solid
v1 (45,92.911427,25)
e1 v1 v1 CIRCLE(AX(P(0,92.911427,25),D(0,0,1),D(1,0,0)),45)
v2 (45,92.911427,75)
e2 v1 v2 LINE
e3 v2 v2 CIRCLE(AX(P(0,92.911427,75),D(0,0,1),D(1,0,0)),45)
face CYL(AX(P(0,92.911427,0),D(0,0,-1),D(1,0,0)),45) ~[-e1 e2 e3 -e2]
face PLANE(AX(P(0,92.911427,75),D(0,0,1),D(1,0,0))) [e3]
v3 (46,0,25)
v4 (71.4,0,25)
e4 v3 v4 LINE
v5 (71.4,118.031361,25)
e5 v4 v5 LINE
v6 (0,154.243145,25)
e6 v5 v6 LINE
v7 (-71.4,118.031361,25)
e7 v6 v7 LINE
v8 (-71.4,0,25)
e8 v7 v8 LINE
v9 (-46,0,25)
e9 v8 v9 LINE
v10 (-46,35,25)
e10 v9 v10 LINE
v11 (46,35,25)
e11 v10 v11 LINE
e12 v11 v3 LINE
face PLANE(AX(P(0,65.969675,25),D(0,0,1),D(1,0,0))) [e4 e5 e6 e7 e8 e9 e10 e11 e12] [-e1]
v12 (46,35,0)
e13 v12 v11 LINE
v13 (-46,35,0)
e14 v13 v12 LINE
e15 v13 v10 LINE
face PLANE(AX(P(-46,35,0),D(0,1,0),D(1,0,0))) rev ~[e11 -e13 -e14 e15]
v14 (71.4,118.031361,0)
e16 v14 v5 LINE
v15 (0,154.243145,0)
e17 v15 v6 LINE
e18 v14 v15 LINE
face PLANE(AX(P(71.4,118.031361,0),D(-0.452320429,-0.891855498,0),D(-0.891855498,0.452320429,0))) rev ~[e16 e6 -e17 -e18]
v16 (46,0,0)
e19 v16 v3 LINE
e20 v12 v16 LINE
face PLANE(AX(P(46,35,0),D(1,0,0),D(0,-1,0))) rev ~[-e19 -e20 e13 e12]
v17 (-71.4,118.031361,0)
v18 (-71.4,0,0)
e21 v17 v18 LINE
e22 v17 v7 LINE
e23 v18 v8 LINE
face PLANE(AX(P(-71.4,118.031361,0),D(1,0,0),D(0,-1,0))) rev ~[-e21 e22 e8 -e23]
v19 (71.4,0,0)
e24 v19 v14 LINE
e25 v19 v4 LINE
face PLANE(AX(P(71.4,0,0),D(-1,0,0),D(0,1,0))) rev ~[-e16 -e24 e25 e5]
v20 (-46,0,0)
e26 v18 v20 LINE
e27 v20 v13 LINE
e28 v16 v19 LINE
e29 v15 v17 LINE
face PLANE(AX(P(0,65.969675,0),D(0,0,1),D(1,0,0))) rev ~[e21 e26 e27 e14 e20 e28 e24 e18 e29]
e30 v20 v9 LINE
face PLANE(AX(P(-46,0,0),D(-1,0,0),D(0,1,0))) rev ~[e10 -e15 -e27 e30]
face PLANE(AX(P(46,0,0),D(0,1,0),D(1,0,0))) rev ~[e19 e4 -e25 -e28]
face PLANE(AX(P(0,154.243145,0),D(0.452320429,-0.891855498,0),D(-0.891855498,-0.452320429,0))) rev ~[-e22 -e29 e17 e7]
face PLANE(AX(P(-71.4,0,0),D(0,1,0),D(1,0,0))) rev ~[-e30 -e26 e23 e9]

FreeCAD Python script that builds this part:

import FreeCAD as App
import Part
import Sketcher
from FreeCAD import Vector

doc = App.newDocument("Part")
body = doc.addObject("PartDesign::Body", "Body")

# Sketch on XY plane
sketch1 = body.newObject("Sketcher::SketchObject", "Sketch")
sketch1.AttachmentSupport = (doc.getObject("XY_Plane"), [""])
sketch1.MapMode = "FlatFace"
sketch1.addGeometry([
    Part.LineSegment(Vector(-46, 35, 0), Vector(46, 35, 0)),  # 0
    Part.LineSegment(Vector(46, 35, 0), Vector(46, 0, 0)),  # 1
    Part.LineSegment(Vector(46, 0, 0), Vector(71.4, 0, 0)),  # 2
    Part.LineSegment(Vector(71.4, 0, 0), Vector(71.4, 118.031361, 0)),  # 3
    Part.LineSegment(Vector(71.4, 118.031361, 0), Vector(0, 154.243145, 0)),  # 4
    Part.LineSegment(Vector(0, 154.243145, 0), Vector(-71.4, 118.031361, 0)),  # 5
    Part.LineSegment(Vector(-71.4, 118.031361, 0), Vector(-71.4, 0, 0)),  # 6
    Part.LineSegment(Vector(-71.4, 0, 0), Vector(-46, 0, 0)),  # 7
    Part.LineSegment(Vector(-46, 0, 0), Vector(-46, 35, 0)),  # 8
    Part.Circle(Vector(0, 92.911427, 0), Vector(0, 0, 1), 45),  # 9
], False)
sketch1.addConstraint([
    Sketcher.Constraint("Coincident", 0, 2, 1, 1),
    Sketcher.Constraint("Coincident", 1, 2, 2, 1),
    Sketcher.Constraint("Coincident", 2, 2, 3, 1),
    Sketcher.Constraint("Coincident", 3, 2, 4, 1),
    Sketcher.Constraint("Coincident", 4, 2, 5, 1),
    Sketcher.Constraint("Coincident", 5, 2, 6, 1),
    Sketcher.Constraint("Coincident", 6, 2, 7, 1),
    Sketcher.Constraint("Coincident", 7, 2, 8, 1),
    Sketcher.Constraint("Coincident", 8, 2, 0, 1),
    Sketcher.Constraint("Horizontal", 0),
    Sketcher.Constraint("Vertical", 1),
    Sketcher.Constraint("Horizontal", 2),
    Sketcher.Constraint("Vertical", 3),
    Sketcher.Constraint("Vertical", 6),
    Sketcher.Constraint("Horizontal", 7),
    Sketcher.Constraint("Vertical", 8),
    Sketcher.Constraint("Symmetric", 2, 2, 6, 2, -1, 1),
    Sketcher.Constraint("Symmetric", 1, 2, 7, 2, -2),
    Sketcher.Constraint("PointOnObject", 9, 3, -2),
    Sketcher.Constraint("PointOnObject", 4, 2, -2),
    Sketcher.Constraint("Horizontal", 3, 2, 5, 2),
    Sketcher.Constraint("Diameter", 9, 90.0),
    Sketcher.Constraint("DistanceX", 0, 1, 0, 2, 92.0),
    Sketcher.Constraint("DistanceY", 1, 2, 1, 1, 35.0),
    Sketcher.Constraint("DistanceX", 2, 1, 2, 2, 25.4),
    Sketcher.Constraint("DistanceY", 3, 1, 3, 2, 118.031361),
    Sketcher.Constraint("Distance", 4, 80.057812),
    Sketcher.Constraint("DistanceY", -1, 1, 9, 3, 92.911427),
])
pad1 = body.newObject("PartDesign::Pad", "Pad")
pad1.Profile = sketch1
pad1.Length = 25

# Sketch on XY plane
sketch2 = body.newObject("Sketcher::SketchObject", "Sketch001")
sketch2.AttachmentSupport = (doc.getObject("XY_Plane"), [""])
sketch2.MapMode = "FlatFace"
sketch2.addGeometry(Part.Circle(Vector(0, 92.911427, 0), Vector(0, 0, 1), 45), False)
sketch2.addConstraint([
    Sketcher.Constraint("PointOnObject", 0, 3, -2),
    Sketcher.Constraint("Diameter", 0, 90.0),
    Sketcher.Constraint("DistanceY", -1, 1, 0, 3, 92.911427),
])
pad2 = body.newObject("PartDesign::Pad", "Pad001")
pad2.Profile = sketch2
pad2.Length = 75

doc.recompute()
